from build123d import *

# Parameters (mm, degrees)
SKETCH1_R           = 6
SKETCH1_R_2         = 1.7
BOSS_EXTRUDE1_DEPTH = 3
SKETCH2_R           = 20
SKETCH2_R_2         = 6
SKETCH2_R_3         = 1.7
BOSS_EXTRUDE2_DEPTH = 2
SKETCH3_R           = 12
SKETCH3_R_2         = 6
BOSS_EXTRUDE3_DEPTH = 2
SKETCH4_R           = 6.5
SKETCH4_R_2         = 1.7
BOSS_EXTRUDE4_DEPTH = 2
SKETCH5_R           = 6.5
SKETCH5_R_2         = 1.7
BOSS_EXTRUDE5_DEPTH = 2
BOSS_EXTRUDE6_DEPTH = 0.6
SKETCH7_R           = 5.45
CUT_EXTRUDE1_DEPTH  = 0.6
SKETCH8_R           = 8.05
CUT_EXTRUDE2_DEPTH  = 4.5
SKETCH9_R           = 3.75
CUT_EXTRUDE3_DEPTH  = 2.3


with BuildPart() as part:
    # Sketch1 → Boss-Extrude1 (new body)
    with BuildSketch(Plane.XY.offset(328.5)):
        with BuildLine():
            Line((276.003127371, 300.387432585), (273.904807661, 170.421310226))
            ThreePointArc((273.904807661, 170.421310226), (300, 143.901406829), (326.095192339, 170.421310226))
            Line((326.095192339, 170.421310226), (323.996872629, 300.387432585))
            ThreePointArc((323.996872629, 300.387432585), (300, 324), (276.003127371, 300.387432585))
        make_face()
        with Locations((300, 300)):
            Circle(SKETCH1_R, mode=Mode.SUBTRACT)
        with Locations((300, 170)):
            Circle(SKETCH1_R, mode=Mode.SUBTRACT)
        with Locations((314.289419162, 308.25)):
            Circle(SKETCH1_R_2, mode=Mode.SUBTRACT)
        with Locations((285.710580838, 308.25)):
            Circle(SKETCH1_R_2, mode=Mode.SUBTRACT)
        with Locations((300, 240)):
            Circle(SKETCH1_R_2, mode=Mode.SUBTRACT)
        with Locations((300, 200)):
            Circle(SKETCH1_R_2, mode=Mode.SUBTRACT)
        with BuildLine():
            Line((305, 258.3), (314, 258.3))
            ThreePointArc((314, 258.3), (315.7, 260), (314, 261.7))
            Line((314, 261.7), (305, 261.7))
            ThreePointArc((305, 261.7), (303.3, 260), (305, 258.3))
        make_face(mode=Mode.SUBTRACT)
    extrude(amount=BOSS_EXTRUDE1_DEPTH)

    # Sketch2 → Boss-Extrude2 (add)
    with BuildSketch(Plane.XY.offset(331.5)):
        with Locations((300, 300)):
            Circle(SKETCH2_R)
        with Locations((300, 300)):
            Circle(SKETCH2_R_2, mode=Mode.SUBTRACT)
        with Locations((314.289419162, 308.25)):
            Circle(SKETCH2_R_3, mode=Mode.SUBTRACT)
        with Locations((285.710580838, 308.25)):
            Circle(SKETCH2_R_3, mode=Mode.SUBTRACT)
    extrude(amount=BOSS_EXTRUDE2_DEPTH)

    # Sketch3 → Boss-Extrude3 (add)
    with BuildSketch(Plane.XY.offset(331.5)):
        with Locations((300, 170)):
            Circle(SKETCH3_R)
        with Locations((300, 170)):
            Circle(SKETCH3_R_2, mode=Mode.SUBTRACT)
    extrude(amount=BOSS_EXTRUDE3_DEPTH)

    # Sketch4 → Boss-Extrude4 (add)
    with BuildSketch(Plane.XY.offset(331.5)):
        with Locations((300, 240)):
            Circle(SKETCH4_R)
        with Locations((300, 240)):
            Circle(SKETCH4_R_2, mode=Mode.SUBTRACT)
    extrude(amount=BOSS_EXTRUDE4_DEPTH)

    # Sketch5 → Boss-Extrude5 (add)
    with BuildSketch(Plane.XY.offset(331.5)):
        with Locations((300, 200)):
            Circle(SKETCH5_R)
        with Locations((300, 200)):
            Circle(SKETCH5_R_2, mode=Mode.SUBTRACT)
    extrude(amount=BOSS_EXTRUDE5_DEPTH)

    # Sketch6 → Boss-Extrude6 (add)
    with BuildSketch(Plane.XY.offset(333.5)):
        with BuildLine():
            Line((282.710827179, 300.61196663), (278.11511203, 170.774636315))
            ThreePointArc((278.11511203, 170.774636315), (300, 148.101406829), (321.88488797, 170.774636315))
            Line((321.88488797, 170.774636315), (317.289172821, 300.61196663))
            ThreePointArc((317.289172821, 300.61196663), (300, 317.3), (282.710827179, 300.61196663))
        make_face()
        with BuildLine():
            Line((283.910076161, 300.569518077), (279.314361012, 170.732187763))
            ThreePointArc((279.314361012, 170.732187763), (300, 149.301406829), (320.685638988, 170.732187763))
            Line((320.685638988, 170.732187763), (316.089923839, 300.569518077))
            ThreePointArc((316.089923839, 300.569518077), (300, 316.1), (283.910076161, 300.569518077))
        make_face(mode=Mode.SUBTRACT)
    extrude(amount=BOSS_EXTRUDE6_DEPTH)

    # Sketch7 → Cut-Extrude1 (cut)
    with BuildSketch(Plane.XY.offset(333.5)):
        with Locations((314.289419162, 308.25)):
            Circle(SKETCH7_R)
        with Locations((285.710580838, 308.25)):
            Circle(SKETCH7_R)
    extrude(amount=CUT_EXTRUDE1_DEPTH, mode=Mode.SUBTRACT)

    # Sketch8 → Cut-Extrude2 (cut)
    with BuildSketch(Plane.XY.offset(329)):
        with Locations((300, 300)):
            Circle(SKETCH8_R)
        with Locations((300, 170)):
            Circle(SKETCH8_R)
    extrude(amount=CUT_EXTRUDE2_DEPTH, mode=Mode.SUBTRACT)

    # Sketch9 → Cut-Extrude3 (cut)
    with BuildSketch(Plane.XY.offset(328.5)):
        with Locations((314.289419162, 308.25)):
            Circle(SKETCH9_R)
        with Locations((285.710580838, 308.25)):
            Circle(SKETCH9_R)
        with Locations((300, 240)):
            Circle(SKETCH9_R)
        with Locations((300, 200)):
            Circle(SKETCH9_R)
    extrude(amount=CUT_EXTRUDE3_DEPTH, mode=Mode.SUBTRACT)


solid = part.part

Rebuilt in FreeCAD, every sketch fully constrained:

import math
import FreeCAD as App
import Part
import Sketcher

V = App.Vector

doc = App.newDocument("Part")
body = doc.addObject("PartDesign::Body", "Body")

# Sketch on XY plane
sketch1 = body.newObject("Sketcher::SketchObject", "Sketch")
sketch1.AttachmentSupport = (doc.getObject("XY_Plane"), [""])
sketch1.MapMode = "FlatFace"
sketch1.AttachmentOffset = App.Placement(V(0, 0, 328.5), App.Rotation())
sketch1.addGeometry([
    Part.LineSegment(V(276.003127, 300.387433, 0), V(273.904808, 170.42131, 0)),  # 0
    Part.ArcOfCircle(Part.Circle(V(300, 170, 0), V(0, 0, 1), 26.098593), math.radians(179.075033), math.radians(360.924967)),  # 1
    Part.LineSegment(V(326.095192, 170.42131, 0), V(323.996873, 300.387433, 0)),  # 2
    Part.ArcOfCircle(Part.Circle(V(300, 300, 0), V(0, 0, 1), 24), math.radians(0.924967), math.radians(179.075033)),  # 3
    Part.Circle(V(300, 170, 0), V(0, 0, 1), 6),  # 4
    Part.Circle(V(300, 200, 0), V(0, 0, 1), 1.7),  # 5
    Part.Circle(V(285.710581, 308.25, 0), V(0, 0, 1), 1.7),  # 6
    Part.Circle(V(300, 240, 0), V(0, 0, 1), 1.7),  # 7
    Part.LineSegment(V(314, 258.3, 0), V(305, 258.3, 0)),  # 8
    Part.ArcOfCircle(Part.Circle(V(305, 260, 0), V(0, 0, 1), 1.7), math.radians(90), math.radians(270)),  # 9
    Part.LineSegment(V(305, 261.7, 0), V(314, 261.7, 0)),  # 10
    Part.ArcOfCircle(Part.Circle(V(314, 260, 0), V(0, 0, 1), 1.7), math.radians(-90), math.radians(90)),  # 11
    Part.Circle(V(300, 300, 0), V(0, 0, 1), 6),  # 12
    Part.Circle(V(314.289419, 308.25, 0), V(0, 0, 1), 1.7),  # 13
], False)
sketch1.addConstraint([
    Sketcher.Constraint("Tangent", 0, 2, 1, 1),
    Sketcher.Constraint("Tangent", 1, 2, 2, 1),
    Sketcher.Constraint("Tangent", 2, 2, 3, 1),
    Sketcher.Constraint("Tangent", 3, 2, 0, 1),
    Sketcher.Constraint("Tangent", 8, 2, 9, 2),
    Sketcher.Constraint("Tangent", 9, 1, 10, 1),
    Sketcher.Constraint("Tangent", 10, 2, 11, 2),
    Sketcher.Constraint("Tangent", 11, 1, 8, 1),
    Sketcher.Constraint("Horizontal", 8),
    Sketcher.Constraint("Horizontal", 10),
    Sketcher.Constraint("Coincident", 4, 3, 1, 3),
    Sketcher.Constraint("Coincident", 12, 3, 3, 3),
    Sketcher.Constraint("Equal", 5, 6),
    Sketcher.Constraint("Equal", 6, 7),
    Sketcher.Constraint("Equal", 7, 9),
    Sketcher.Constraint("Equal", 4, 12),
    Sketcher.Constraint("Equal", 11, 13),
    Sketcher.Constraint("Horizontal", 6, 3, 13, 3),
    Sketcher.Constraint("Horizontal", 0, 2, 1, 2),
    Sketcher.Constraint("Vertical", 4, 3, 5, 3),
    Sketcher.Constraint("Vertical", 5, 3, 7, 3),
    Sketcher.Constraint("Diameter", 4, 12.0),
    Sketcher.Constraint("Radius", 3, 24.0),
    Sketcher.Constraint("Diameter", 5, 3.4),
    Sketcher.Constraint("DistanceX", 8, 2, 8, 1, 9.0),
    Sketcher.Constraint("DistanceX", -1, 1, 1, 3, 300.0),
    Sketcher.Constraint("DistanceY", -1, 1, 1, 3, 170.0),
    Sketcher.Constraint("DistanceY", -1, 1, 3, 3, 300.0),
    Sketcher.Constraint("DistanceY", -1, 1, 5, 3, 200.0),
    Sketcher.Constraint("DistanceY", -1, 1, 7, 3, 240.0),
    Sketcher.Constraint("DistanceX", -1, 1, 9, 3, 305.0),
    Sketcher.Constraint("DistanceY", -1, 1, 9, 3, 260.0),
    Sketcher.Constraint("DistanceY", -1, 1, 6, 3, 308.25),
    Sketcher.Constraint("Radius", 1, 26.098593),
    Sketcher.Constraint("DistanceX", -1, 1, 6, 3, 285.710581),
    Sketcher.Constraint("DistanceX", -1, 1, 13, 3, 314.289419),
])
pad1 = body.newObject("PartDesign::Pad", "Pad")
pad1.Profile = sketch1
pad1.Length = 3

# Sketch on XY plane
sketch2 = body.newObject("Sketcher::SketchObject", "Sketch001")
sketch2.AttachmentSupport = (doc.getObject("XY_Plane"), [""])
sketch2.MapMode = "FlatFace"
sketch2.AttachmentOffset = App.Placement(V(0, 0, 331.5), App.Rotation())
sketch2.addGeometry([
    Part.Circle(V(300, 300, 0), V(0, 0, 1), 20),
    Part.Circle(V(300, 300, 0), V(0, 0, 1), 6),
    Part.Circle(V(285.710581, 308.25, 0), V(0, 0, 1), 1.7),
    Part.Circle(V(314.289419, 308.25, 0), V(0, 0, 1), 1.7),
], False)
sketch2.addConstraint([
    Sketcher.Constraint("Coincident", 1, 3, 0, 3),
    Sketcher.Constraint("Equal", 2, 3),
    Sketcher.Constraint("Horizontal", 2, 3, 3, 3),
    Sketcher.Constraint("Diameter", 0, 40.0),
    Sketcher.Constraint("Diameter", 1, 12.0),
    Sketcher.Constraint("Diameter", 2, 3.4),
    Sketcher.Constraint("DistanceX", -1, 1, 0, 3, 300.0),
    Sketcher.Constraint("DistanceY", -1, 1, 0, 3, 300.0),
    Sketcher.Constraint("DistanceY", -1, 1, 2, 3, 308.25),
    Sketcher.Constraint("DistanceX", -1, 1, 2, 3, 285.710581),
    Sketcher.Constraint("DistanceX", -1, 1, 3, 3, 314.289419),
])
pad2 = body.newObject("PartDesign::Pad", "Pad001")
pad2.Profile = sketch2
pad2.Length = 2

# Sketch on XY plane
sketch3 = body.newObject("Sketcher::SketchObject", "Sketch002")
sketch3.AttachmentSupport = (doc.getObject("XY_Plane"), [""])
sketch3.MapMode = "FlatFace"
sketch3.AttachmentOffset = App.Placement(V(0, 0, 331.5), App.Rotation())
sketch3.addGeometry([
    Part.Circle(V(300, 170, 0), V(0, 0, 1), 12),
    Part.Circle(V(300, 170, 0), V(0, 0, 1), 6),
], False)
sketch3.addConstraint([
    Sketcher.Constraint("Coincident", 1, 3, 0, 3),
    Sketcher.Constraint("Diameter", 0, 24.0),
    Sketcher.Constraint("Diameter", 1, 12.0),
    Sketcher.Constraint("DistanceX", -1, 1, 0, 3, 300.0),
    Sketcher.Constraint("DistanceY", -1, 1, 0, 3, 170.0),
])
pad3 = body.newObject("PartDesign::Pad", "Pad002")
pad3.Profile = sketch3
pad3.Length = 2

# Sketch on XY plane
sketch4 = body.newObject("Sketcher::SketchObject", "Sketch003")
sketch4.AttachmentSupport = (doc.getObject("XY_Plane"), [""])
sketch4.MapMode = "FlatFace"
sketch4.AttachmentOffset = App.Placement(V(0, 0, 331.5), App.Rotation())
sketch4.addGeometry([
    Part.Circle(V(300, 240, 0), V(0, 0, 1), 6.5),
    Part.Circle(V(300, 240, 0), V(0, 0, 1), 1.7),
], False)
sketch4.addConstraint([
    Sketcher.Constraint("Coincident", 1, 3, 0, 3),
    Sketcher.Constraint("Diameter", 0, 13.0),
    Sketcher.Constraint("Diameter", 1, 3.4),
    Sketcher.Constraint("DistanceX", -1, 1, 0, 3, 300.0),
    Sketcher.Constraint("DistanceY", -1, 1, 0, 3, 240.0),
])
pad4 = body.newObject("PartDesign::Pad", "Pad003")
pad4.Profile = sketch4
pad4.Length = 2

# Sketch on XY plane
sketch5 = body.newObject("Sketcher::SketchObject", "Sketch004")
sketch5.AttachmentSupport = (doc.getObject("XY_Plane"), [""])
sketch5.MapMode = "FlatFace"
sketch5.AttachmentOffset = App.Placement(V(0, 0, 331.5), App.Rotation())
sketch5.addGeometry([
    Part.Circle(V(300, 200, 0), V(0, 0, 1), 6.5),
    Part.Circle(V(300, 200, 0), V(0, 0, 1), 1.7),
], False)
sketch5.addConstraint([
    Sketcher.Constraint("Coincident", 1, 3, 0, 3),
    Sketcher.Constraint("Diameter", 0, 13.0),
    Sketcher.Constraint("Diameter", 1, 3.4),
    Sketcher.Constraint("DistanceX", -1, 1, 0, 3, 300.0),
    Sketcher.Constraint("DistanceY", -1, 1, 0, 3, 200.0),
])
pad5 = body.newObject("PartDesign::Pad", "Pad004")
pad5.Profile = sketch5
pad5.Length = 2

# Sketch on XY plane
sketch6 = body.newObject("Sketcher::SketchObject", "Sketch005")
sketch6.AttachmentSupport = (doc.getObject("XY_Plane"), [""])
sketch6.MapMode = "FlatFace"
sketch6.AttachmentOffset = App.Placement(V(0, 0, 333.5), App.Rotation())
sketch6.addGeometry([
    Part.LineSegment(V(282.710827, 300.611967, 0), V(278.115112, 170.774636, 0)),  # 0
    Part.ArcOfCircle(Part.Circle(V(300, 170, 0), V(0, 0, 1), 21.898593), math.radians(177.972808), math.radians(362.027192)),  # 1
    Part.LineSegment(V(321.884888, 170.774636, 0), V(317.289173, 300.611967, 0)),  # 2
    Part.ArcOfCircle(Part.Circle(V(300, 300, 0), V(0, 0, 1), 17.3), math.radians(2.027192), math.radians(177.972808)),  # 3
    Part.LineSegment(V(279.314361, 170.732188, 0), V(283.910076, 300.569518, 0)),  # 4
    Part.ArcOfCircle(Part.Circle(V(300, 300, 0), V(0, 0, 1), 16.1), math.radians(2.027192), math.radians(177.972808)),  # 5
    Part.LineSegment(V(316.089924, 300.569518, 0), V(320.685639, 170.732188, 0)),  # 6
    Part.ArcOfCircle(Part.Circle(V(300, 170, 0), V(0, 0, 1), 20.698593), math.radians(177.972808), math.radians(362.027192)),  # 7
], False)
sketch6.addConstraint([
    Sketcher.Constraint("Tangent", 0, 2, 1, 1),
    Sketcher.Constraint("Tangent", 1, 2, 2, 1),
    Sketcher.Constraint("Tangent", 2, 2, 3, 1),
    Sketcher.Constraint("Tangent", 3, 2, 0, 1),
    Sketcher.Constraint("Tangent", 4, 2, 5, 2),
    Sketcher.Constraint("Tangent", 5, 1, 6, 1),
    Sketcher.Constraint("Tangent", 6, 2, 7, 2),
    Sketcher.Constraint("Tangent", 7, 1, 4, 1),
    Sketcher.Constraint("Coincident", 5, 3, 3, 3),
    Sketcher.Constraint("Coincident", 7, 3, 1, 3),
    Sketcher.Constraint("Parallel", 0, 4),
    Sketcher.Constraint("Horizontal", 0, 2, 1, 2),
    Sketcher.Constraint("Radius", 3, 17.3),
    Sketcher.Constraint("Radius", 5, 16.1),
    Sketcher.Constraint("DistanceX", -1, 1, 1, 3, 300.0),
    Sketcher.Constraint("DistanceY", -1, 1, 1, 3, 170.0),
    Sketcher.Constraint("DistanceY", -1, 1, 3, 3, 300.0),
    Sketcher.Constraint("Radius", 1, 21.898593),
])
pad6 = body.newObject("PartDesign::Pad", "Pad005")
pad6.Profile = sketch6
pad6.Length = 0.6

# Sketch on XY plane
sketch7 = body.newObject("Sketcher::SketchObject", "Sketch006")
sketch7.AttachmentSupport = (doc.getObject("XY_Plane"), [""])
sketch7.MapMode = "FlatFace"
sketch7.AttachmentOffset = App.Placement(V(0, 0, 333.5), App.Rotation())
sketch7.addGeometry([
    Part.Circle(V(314.289419, 308.25, 0), V(0, 0, 1), 5.45),
    Part.Circle(V(285.710581, 308.25, 0), V(0, 0, 1), 5.45),
], False)
sketch7.addConstraint([
    Sketcher.Constraint("Equal", 0, 1),
    Sketcher.Constraint("Horizontal", 0, 3, 1, 3),
    Sketcher.Constraint("Diameter", 0, 10.9),
    Sketcher.Constraint("DistanceY", -1, 1, 0, 3, 308.25),
    Sketcher.Constraint("DistanceX", -1, 1, 0, 3, 314.289419),
    Sketcher.Constraint("DistanceX", -1, 1, 1, 3, 285.710581),
])
pocket1 = body.newObject("PartDesign::Pocket", "Pocket")
pocket1.Profile = sketch7
pocket1.Length = 0.6
pocket1.Reversed = True

# Sketch on XY plane
sketch8 = body.newObject("Sketcher::SketchObject", "Sketch007")
sketch8.AttachmentSupport = (doc.getObject("XY_Plane"), [""])
sketch8.MapMode = "FlatFace"
sketch8.AttachmentOffset = App.Placement(V(0, 0, 329), App.Rotation())
sketch8.addGeometry([
    Part.Circle(V(300, 300, 0), V(0, 0, 1), 8.05),
    Part.Circle(V(300, 170, 0), V(0, 0, 1), 8.05),
], False)
sketch8.addConstraint([
    Sketcher.Constraint("Equal", 0, 1),
    Sketcher.Constraint("Vertical", 0, 3, 1, 3),
    Sketcher.Constraint("Diameter", 0, 16.1),
    Sketcher.Constraint("DistanceX", -1, 1, 0, 3, 300.0),
    Sketcher.Constraint("DistanceY", -1, 1, 0, 3, 300.0),
    Sketcher.Constraint("DistanceY", -1, 1, 1, 3, 170.0),
])
pocket2 = body.newObject("PartDesign::Pocket", "Pocket001")
pocket2.Profile = sketch8
pocket2.Length = 4.5
pocket2.Reversed = True

# Sketch on XY plane
sketch9 = body.newObject("Sketcher::SketchObject", "Sketch008")
sketch9.AttachmentSupport = (doc.getObject("XY_Plane"), [""])
sketch9.MapMode = "FlatFace"
sketch9.AttachmentOffset = App.Placement(V(0, 0, 328.5), App.Rotation())
sketch9.addGeometry([
    Part.Circle(V(314.289419, 308.25, 0), V(0, 0, 1), 3.75),
    Part.Circle(V(285.710581, 308.25, 0), V(0, 0, 1), 3.75),
    Part.Circle(V(300, 240, 0), V(0, 0, 1), 3.75),
    Part.Circle(V(300, 200, 0), V(0, 0, 1), 3.75),
], False)
sketch9.addConstraint([
    Sketcher.Constraint("Equal", 0, 1),
    Sketcher.Constraint("Equal", 1, 2),
    Sketcher.Constraint("Equal", 2, 3),
    Sketcher.Constraint("Horizontal", 0, 3, 1, 3),
    Sketcher.Constraint("Vertical", 2, 3, 3, 3),
    Sketcher.Constraint("Diameter", 0, 7.5),
    Sketcher.Constraint("DistanceX", -1, 1, 2, 3, 300.0),
    Sketcher.Constraint("DistanceY", -1, 1, 2, 3, 240.0),
    Sketcher.Constraint("DistanceY", -1, 1, 3, 3, 200.0),
    Sketcher.Constraint("DistanceY", -1, 1, 0, 3, 308.25),
    Sketcher.Constraint("DistanceX", -1, 1, 0, 3, 314.289419),
    Sketcher.Constraint("DistanceX", -1, 1, 1, 3, 285.710581),
])
pocket3 = body.newObject("PartDesign::Pocket", "Pocket002")
pocket3.Profile = sketch9
pocket3.Length = 2.3
pocket3.Reversed = True

doc.recompute()
